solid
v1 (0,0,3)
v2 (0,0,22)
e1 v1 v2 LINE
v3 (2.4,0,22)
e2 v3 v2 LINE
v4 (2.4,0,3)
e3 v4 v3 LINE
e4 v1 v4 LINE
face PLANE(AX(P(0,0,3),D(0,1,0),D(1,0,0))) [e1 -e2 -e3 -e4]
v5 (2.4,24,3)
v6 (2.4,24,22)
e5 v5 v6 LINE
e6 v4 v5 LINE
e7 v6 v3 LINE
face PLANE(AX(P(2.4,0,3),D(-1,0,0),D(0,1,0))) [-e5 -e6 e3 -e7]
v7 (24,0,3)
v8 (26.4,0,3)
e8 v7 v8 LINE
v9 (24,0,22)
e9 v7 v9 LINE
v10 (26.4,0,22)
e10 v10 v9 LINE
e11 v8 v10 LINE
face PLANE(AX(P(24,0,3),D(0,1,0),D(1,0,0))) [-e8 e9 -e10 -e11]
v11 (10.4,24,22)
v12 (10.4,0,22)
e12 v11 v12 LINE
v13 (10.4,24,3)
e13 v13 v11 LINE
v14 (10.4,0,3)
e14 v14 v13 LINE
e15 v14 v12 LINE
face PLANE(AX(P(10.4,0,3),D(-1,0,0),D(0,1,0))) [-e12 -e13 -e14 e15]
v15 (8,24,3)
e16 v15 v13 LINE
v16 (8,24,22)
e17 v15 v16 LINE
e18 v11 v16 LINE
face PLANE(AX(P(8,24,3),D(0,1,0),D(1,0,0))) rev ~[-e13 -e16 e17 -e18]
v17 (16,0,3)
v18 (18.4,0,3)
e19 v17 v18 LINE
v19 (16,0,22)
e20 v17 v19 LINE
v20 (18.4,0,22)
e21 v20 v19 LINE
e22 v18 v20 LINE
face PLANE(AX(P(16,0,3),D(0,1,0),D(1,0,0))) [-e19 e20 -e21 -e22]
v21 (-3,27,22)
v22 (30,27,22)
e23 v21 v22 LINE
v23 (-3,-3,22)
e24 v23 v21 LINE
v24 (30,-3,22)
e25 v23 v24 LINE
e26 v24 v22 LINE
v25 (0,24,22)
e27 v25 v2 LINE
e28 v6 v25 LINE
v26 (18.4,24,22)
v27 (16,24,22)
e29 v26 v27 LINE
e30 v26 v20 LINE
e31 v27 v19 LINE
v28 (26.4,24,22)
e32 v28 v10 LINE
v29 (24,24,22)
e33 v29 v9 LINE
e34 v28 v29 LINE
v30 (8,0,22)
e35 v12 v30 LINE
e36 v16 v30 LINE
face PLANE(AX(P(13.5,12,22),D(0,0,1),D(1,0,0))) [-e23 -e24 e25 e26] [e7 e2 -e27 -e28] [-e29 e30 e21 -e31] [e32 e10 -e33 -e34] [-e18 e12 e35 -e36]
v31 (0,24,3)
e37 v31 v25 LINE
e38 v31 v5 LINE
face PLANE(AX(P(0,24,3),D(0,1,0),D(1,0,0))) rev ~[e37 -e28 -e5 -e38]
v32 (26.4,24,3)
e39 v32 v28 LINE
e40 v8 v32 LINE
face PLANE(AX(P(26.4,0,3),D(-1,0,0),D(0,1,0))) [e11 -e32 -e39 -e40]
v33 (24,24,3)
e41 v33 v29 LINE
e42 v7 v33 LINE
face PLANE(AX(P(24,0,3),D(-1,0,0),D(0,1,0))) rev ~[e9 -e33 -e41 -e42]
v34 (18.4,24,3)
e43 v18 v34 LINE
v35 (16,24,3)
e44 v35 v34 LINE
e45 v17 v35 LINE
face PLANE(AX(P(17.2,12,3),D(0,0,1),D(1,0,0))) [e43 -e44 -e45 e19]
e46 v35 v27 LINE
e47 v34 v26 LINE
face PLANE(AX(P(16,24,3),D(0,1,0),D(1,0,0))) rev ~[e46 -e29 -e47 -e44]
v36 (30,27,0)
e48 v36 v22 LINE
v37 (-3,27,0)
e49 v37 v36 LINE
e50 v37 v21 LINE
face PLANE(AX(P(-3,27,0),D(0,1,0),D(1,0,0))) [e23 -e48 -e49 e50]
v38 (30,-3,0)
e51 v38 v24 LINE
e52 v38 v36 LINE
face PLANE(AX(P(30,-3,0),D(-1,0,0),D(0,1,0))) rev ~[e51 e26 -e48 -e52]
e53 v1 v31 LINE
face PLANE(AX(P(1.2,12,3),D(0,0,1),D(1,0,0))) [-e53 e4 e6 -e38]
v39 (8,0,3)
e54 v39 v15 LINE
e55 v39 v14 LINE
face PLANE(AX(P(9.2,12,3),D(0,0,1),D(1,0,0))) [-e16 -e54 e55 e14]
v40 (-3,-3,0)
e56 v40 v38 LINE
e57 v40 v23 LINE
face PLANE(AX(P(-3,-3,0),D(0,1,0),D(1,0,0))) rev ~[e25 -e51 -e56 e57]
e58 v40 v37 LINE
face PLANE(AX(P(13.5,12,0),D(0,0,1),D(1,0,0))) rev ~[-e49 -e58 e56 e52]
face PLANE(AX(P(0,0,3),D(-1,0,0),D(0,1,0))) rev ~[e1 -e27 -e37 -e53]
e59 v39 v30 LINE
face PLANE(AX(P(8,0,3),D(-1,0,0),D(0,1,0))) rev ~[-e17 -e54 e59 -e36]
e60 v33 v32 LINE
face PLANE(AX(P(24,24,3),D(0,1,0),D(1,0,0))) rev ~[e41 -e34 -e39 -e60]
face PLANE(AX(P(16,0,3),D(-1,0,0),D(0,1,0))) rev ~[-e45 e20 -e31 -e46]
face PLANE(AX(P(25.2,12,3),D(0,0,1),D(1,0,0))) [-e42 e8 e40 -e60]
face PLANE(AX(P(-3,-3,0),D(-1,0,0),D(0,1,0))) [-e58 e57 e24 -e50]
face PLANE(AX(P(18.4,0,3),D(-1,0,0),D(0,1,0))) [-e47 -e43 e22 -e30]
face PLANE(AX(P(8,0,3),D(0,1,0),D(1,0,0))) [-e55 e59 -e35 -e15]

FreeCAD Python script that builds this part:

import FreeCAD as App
import Part
import Sketcher


def add_polygon(sketch, points):
    """Adds a closed chain of lines whose ends are joined by coincident constraints."""
    first, n = sketch.GeometryCount, len(points)
    for a, b in zip(points, points[1:] + points[:1]):
        sketch.addGeometry(Part.LineSegment(App.Vector(*a, 0), App.Vector(*b, 0)), False)
    for i in range(n):
        sketch.addConstraint(Sketcher.Constraint("Coincident", first + i, 2, first + (i + 1) % n, 1))

doc = App.newDocument("Part")
body = doc.addObject("PartDesign::Body", "Body")

# Sketch on XY plane
sketch1 = body.newObject("Sketcher::SketchObject", "Sketch")
sketch1.AttachmentSupport = (doc.getObject("XY_Plane"), [""])
sketch1.MapMode = "FlatFace"
add_polygon(sketch1, [(8, 24), (8, 0), (10.4, 0), (10.4, 24)])  # lines 0-3
sketch1.addConstraint([
    Sketcher.Constraint("Vertical", 0),
    Sketcher.Constraint("Horizontal", 1),
    Sketcher.Constraint("Vertical", 2),
    Sketcher.Constraint("Horizontal", 3),
    Sketcher.Constraint("PointOnObject", 0, 2, -1),
    Sketcher.Constraint("DistanceY", 0, 2, 0, 1, 24.0),
    Sketcher.Constraint("DistanceX", 1, 1, 1, 2, 2.4),
    Sketcher.Constraint("DistanceX", -1, 1, 0, 2, 8.0),
])
pad1 = body.newObject("PartDesign::Pad", "Pad")
pad1.Profile = sketch1
pad1.Length = 22
body2 = doc.addObject("PartDesign::Body", "Body001")

# Sketch on XY plane
sketch2 = body2.newObject("Sketcher::SketchObject", "Sketch001")
sketch2.AttachmentSupport = (doc.getObject("XY_Plane001"), [""])
sketch2.MapMode = "FlatFace"
add_polygon(sketch2, [(16, 24), (16, 0), (18.4, 0), (18.4, 24)])  # lines 0-3
sketch2.addConstraint([
    Sketcher.Constraint("Vertical", 0),
    Sketcher.Constraint("Horizontal", 1),
    Sketcher.Constraint("Vertical", 2),
    Sketcher.Constraint("Horizontal", 3),
    Sketcher.Constraint("PointOnObject", 0, 2, -1),
    Sketcher.Constraint("DistanceY", 0, 2, 0, 1, 24.0),
    Sketcher.Constraint("DistanceX", 1, 1, 1, 2, 2.4),
    Sketcher.Constraint("DistanceX", -1, 1, 0, 2, 16.0),
])
pad2 = body2.newObject("PartDesign::Pad", "Pad001")
pad2.Profile = sketch2
pad2.Length = 22
body3 = doc.addObject("PartDesign::Body", "Body002")

# Sketch on XY plane
sketch3 = body3.newObject("Sketcher::SketchObject", "Sketch002")
sketch3.AttachmentSupport = (doc.getObject("XY_Plane002"), [""])
sketch3.MapMode = "FlatFace"
add_polygon(sketch3, [(24, 24), (24, 0), (26.4, 0), (26.4, 24)])  # lines 0-3
sketch3.addConstraint([
    Sketcher.Constraint("Vertical", 0),
    Sketcher.Constraint("Horizontal", 1),
    Sketcher.Constraint("Vertical", 2),
    Sketcher.Constraint("Horizontal", 3),
    Sketcher.Constraint("PointOnObject", 0, 2, -1),
    Sketcher.Constraint("DistanceY", 0, 2, 0, 1, 24.0),
    Sketcher.Constraint("DistanceX", 1, 1, 1, 2, 2.4),
    Sketcher.Constraint("DistanceX", -1, 1, 0, 2, 24.0),
])
pad3 = body3.newObject("PartDesign::Pad", "Pad002")
pad3.Profile = sketch3
pad3.Length = 22
body4 = doc.addObject("PartDesign::Body", "Body003")
body4.AllowCompound = True

# Sketch on XY plane
sketch4 = body4.newObject("Sketcher::SketchObject", "Sketch003")
sketch4.AttachmentSupport = (doc.getObject("XY_Plane003"), [""])
sketch4.MapMode = "FlatFace"
add_polygon(sketch4, [(0, 24), (0, 0), (2.4, 0), (2.4, 24)])  # lines 0-3
sketch4.addConstraint([
    Sketcher.Constraint("Vertical", 0),
    Sketcher.Constraint("Horizontal", 1),
    Sketcher.Constraint("Vertical", 2),
    Sketcher.Constraint("Horizontal", 3),
    Sketcher.Constraint("Coincident", 0, 2, -1, 1),
    Sketcher.Constraint("DistanceY", 0, 2, 0, 1, 24.0),
    Sketcher.Constraint("DistanceX", 1, 1, 1, 2, 2.4),
])
pad4 = body4.newObject("PartDesign::Pad", "Pad003")
pad4.Profile = sketch4
pad4.Length = 22
doc.recompute()

boolean = body4.newObject("PartDesign::Boolean", "Boolean")
boolean.Type = "Fuse"
boolean.addObjects([body])
doc.recompute()

boolean2 = body4.newObject("PartDesign::Boolean", "Boolean001")
boolean2.Type = "Fuse"
boolean2.addObjects([body2])
doc.recompute()

boolean3 = body4.newObject("PartDesign::Boolean", "Boolean002")
boolean3.Type = "Fuse"
boolean3.addObjects([body3])
body5 = doc.addObject("PartDesign::Body", "Body004")
body5.AllowCompound = True
doc.recompute()

body4.Placement = App.Placement(App.Vector(0, 0, 3), App.Rotation(App.Vector(0, 0, 1), 0))
boolean4 = body5.newObject("PartDesign::Boolean", "Boolean003")
boolean4.Type = "Fuse"
boolean4.addObjects([body4])
body6 = doc.addObject("PartDesign::Body", "Body005")

# Sketch on XY plane
sketch5 = body6.newObject("Sketcher::SketchObject", "Sketch004")
sketch5.AttachmentSupport = (doc.getObject("XY_Plane005"), [""])
sketch5.MapMode = "FlatFace"
add_polygon(sketch5, [(-3, 27), (-3, -3), (30, -3), (30, 27)])  # lines 0-3
sketch5.addConstraint([
    Sketcher.Constraint("Vertical", 0),
    Sketcher.Constraint("Horizontal", 1),
    Sketcher.Constraint("Vertical", 2),
    Sketcher.Constraint("Horizontal", 3),
    Sketcher.Constraint("DistanceX", 1, 1, 1, 2, 33.0),
    Sketcher.Constraint("DistanceY", 0, 2, 0, 1, 30.0),
    Sketcher.Constraint("DistanceX", 0, 2, -1, 1, 3.0),
    Sketcher.Constraint("DistanceY", 0, 2, -1, 1, 3.0),
])
pad5 = body6.newObject("PartDesign::Pad", "Pad004")
pad5.Profile = sketch5
pad5.Length = 22
doc.recompute()

boolean5 = body6.newObject("PartDesign::Boolean", "Boolean004")
boolean5.Type = "Cut"
boolean5.addObjects([body5])

doc.recompute()
